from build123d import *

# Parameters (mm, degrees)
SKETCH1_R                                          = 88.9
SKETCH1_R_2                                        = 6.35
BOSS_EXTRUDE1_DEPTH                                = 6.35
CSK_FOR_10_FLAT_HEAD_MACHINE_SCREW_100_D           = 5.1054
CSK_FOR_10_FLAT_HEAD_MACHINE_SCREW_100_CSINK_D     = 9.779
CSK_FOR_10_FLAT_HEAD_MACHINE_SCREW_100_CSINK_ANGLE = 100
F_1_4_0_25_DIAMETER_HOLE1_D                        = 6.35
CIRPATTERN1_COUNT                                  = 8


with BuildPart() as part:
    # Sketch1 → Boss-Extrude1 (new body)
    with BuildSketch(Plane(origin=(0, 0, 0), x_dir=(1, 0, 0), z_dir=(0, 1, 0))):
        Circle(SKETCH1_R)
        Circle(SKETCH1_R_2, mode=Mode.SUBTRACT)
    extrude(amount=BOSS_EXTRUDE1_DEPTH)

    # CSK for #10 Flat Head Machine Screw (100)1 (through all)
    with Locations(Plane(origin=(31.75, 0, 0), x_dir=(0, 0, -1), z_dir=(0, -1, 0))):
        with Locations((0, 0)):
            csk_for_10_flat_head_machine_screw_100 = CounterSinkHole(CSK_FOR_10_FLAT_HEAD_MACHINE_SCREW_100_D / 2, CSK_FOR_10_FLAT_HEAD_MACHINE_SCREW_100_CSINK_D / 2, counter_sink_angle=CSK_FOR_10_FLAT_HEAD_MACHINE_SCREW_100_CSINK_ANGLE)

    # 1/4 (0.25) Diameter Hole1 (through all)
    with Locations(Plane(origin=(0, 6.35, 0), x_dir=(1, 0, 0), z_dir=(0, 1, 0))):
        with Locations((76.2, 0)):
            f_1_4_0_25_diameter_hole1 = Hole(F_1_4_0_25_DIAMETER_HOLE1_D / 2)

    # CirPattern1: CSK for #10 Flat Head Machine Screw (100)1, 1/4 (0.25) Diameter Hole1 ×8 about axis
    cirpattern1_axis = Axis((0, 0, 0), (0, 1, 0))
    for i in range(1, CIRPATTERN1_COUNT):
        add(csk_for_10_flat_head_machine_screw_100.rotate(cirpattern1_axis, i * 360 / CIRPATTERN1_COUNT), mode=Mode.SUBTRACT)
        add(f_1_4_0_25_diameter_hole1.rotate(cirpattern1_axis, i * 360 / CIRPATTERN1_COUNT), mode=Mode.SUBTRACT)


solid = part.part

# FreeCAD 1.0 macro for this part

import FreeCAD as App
import Part
import Sketcher
Q = App.Units.Quantity

doc = App.newDocument("Part")
params = doc.addObject("Spreadsheet::Sheet", "Params")
for row, (alias, value) in enumerate([
    ("sketch1_diameter", "7 in"),
    ("sketch1_diameter2", "0.5 in"),
    ("pad1_length", "0.25 in"),
    ("sketch2_diameter", "0.201 in"),
    ("hole_diameter", "0.201 in"),
    ("hole_csink_diameter", "0.385 in"),
    ("sketch3_diameter", "0.25 in"),
    ("hole2_diameter", "0.25 in"),
], start=1):
    params.set(f"A{row}", alias)
    params.set(f"B{row}", "=" + value)
    params.setAlias(f"B{row}", alias)

body = doc.addObject("PartDesign::Body", "Body")

# Sketch on XZ plane
sketch1 = doc.addObject("Sketcher::SketchObject", "Sketch")
body.addObject(sketch1)
sketch1.AttachmentSupport = (doc.XZ_Plane, [""])
sketch1.MapMode = "FlatFace"
sketch1.addGeometry([
    Part.Circle(App.Vector(0, 0, 0), App.Vector(0, 0, 1), 89),
    Part.Circle(App.Vector(0, 0, 0), App.Vector(0, 0, 1), 6),
], False)
sketch1.addConstraint([
    Sketcher.Constraint("Coincident", 0, 3, -1, 1),
    Sketcher.Constraint("Coincident", 1, 3, -1, 1),
    Sketcher.Constraint("Diameter", 0, Q("7 in")),
    Sketcher.Constraint("Diameter", 1, Q("0.5 in")),
])
sketch1.setExpression("Constraints[2]", "Params.sketch1_diameter")
sketch1.setExpression("Constraints[3]", "Params.sketch1_diameter2")
pad1 = doc.addObject("PartDesign::Pad", "Pad")
body.addObject(pad1)
pad1.Profile = sketch1
pad1.setExpression("Length", "Params.pad1_length")
pad1.Reversed = True

# Sketch on XZ plane
sketch2 = doc.addObject("Sketcher::SketchObject", "Sketch001")
body.addObject(sketch2)
sketch2.AttachmentSupport = (doc.XZ_Plane, [""])
sketch2.MapMode = "FlatFace"
sketch2.addGeometry(Part.Circle(App.Vector(31.8, 0, 0), App.Vector(0, 0, 1), 2.6), False)
sketch2.addConstraint([
    Sketcher.Constraint("PointOnObject", 0, 3, -1),
    Sketcher.Constraint("Diameter", 0, Q("0.201 in")),
    Sketcher.Constraint("DistanceX", -1, 1, 0, 3, Q("1.25 in")),
])
sketch2.setExpression("Constraints[1]", "Params.sketch2_diameter")
doc.recompute()
hole = doc.addObject("PartDesign::Hole", "Hole")
body.addObject(hole)
hole.Profile = sketch2
hole.ThreadType = "None"
hole.setExpression("Diameter", "Params.hole_diameter")
hole.DepthType = "ThroughAll"
hole.HoleCutType = "Countersink"
hole.setExpression("HoleCutDiameter", "Params.hole_csink_diameter")
hole.HoleCutCountersinkAngle = 100

# Sketch on XZ plane
sketch3 = doc.addObject("Sketcher::SketchObject", "Sketch002")
body.addObject(sketch3)
sketch3.AttachmentSupport = (doc.XZ_Plane, [""])
sketch3.MapMode = "FlatFace"
sketch3.AttachmentOffset = App.Placement(App.Vector(0, 0, -0.25 * 25.4), App.Rotation())
sketch3.addGeometry(Part.Circle(App.Vector(76.2, 0, 0), App.Vector(0, 0, 1), 3.2), False)
sketch3.addConstraint([
    Sketcher.Constraint("PointOnObject", 0, 3, -1),
    Sketcher.Constraint("Diameter", 0, Q("0.25 in")),
    Sketcher.Constraint("DistanceX", -1, 1, 0, 3, Q("3 in")),
])
sketch3.setExpression("Constraints[1]", "Params.sketch3_diameter")
doc.recompute()
hole2 = doc.addObject("PartDesign::Hole", "Hole001")
body.addObject(hole2)
hole2.Profile = sketch3
hole2.ThreadType = "None"
hole2.setExpression("Diameter", "Params.hole2_diameter")
hole2.DepthType = "ThroughAll"
hole2.Reversed = True
doc.recompute()

polarpattern = doc.addObject("PartDesign::PolarPattern", "PolarPattern")
body.addObject(polarpattern)
polarpattern.Originals = [hole, hole2]
polarpattern.Axis = (doc.Y_Axis, [""])
polarpattern.Angle = 360
polarpattern.Occurrences = 8
body.Tip = polarpattern

doc.recompute()
